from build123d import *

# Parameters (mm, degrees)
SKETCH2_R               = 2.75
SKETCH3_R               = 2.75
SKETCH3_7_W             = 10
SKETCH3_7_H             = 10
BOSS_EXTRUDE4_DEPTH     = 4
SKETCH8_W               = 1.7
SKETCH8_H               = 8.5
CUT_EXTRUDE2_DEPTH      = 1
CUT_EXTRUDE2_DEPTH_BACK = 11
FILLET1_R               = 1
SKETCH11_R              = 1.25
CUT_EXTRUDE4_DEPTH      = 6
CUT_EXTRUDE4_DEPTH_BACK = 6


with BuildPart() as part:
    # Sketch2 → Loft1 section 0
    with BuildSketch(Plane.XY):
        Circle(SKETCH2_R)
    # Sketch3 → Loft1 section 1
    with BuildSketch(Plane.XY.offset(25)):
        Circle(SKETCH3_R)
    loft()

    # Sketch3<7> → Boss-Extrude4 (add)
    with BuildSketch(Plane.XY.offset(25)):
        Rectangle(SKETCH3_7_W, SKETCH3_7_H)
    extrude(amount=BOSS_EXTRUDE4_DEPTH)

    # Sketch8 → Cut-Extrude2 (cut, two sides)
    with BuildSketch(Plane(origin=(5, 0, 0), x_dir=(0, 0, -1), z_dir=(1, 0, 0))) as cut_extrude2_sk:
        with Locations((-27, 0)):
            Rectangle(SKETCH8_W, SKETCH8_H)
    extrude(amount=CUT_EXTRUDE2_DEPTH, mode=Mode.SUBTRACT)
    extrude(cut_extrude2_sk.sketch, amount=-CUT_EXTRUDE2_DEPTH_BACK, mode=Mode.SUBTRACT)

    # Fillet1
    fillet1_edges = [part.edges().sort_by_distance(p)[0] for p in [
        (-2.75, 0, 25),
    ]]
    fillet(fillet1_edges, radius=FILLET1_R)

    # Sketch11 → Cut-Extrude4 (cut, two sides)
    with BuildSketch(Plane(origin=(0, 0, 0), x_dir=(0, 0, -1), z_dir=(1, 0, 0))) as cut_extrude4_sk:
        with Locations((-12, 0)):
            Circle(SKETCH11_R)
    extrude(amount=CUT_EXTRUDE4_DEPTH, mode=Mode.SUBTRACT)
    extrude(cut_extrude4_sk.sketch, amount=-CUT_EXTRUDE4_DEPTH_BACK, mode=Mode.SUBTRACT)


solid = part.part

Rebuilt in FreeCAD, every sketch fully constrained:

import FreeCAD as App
import Part
import Sketcher

V = App.Vector


def edges_at(feature, points):
    """Names of the edges that pass closest to the given points."""
    edges = feature.Shape.Edges
    near = lambda p: min(range(len(edges)), key=lambda i: edges[i].distToShape(Part.Vertex(*p))[0])
    return sorted({f"Edge{near(p) + 1}" for p in points})


def add_polygon(sketch, points):
    """Adds a closed chain of lines whose ends are joined by coincident constraints."""
    first, n = sketch.GeometryCount, len(points)
    for a, b in zip(points, points[1:] + points[:1]):
        sketch.addGeometry(Part.LineSegment(App.Vector(*a, 0), App.Vector(*b, 0)), False)
    for i in range(n):
        sketch.addConstraint(Sketcher.Constraint("Coincident", first + i, 2, first + (i + 1) % n, 1))

doc = App.newDocument("Part")
body = doc.addObject("PartDesign::Body", "Body")

sketch1 = body.newObject("Sketcher::SketchObject", "Sketch")
sketch1.AttachmentSupport = (doc.getObject("XY_Plane"), [""])
sketch1.MapMode = "FlatFace"
sketch1.addGeometry(Part.Circle(V(0, 0, 0), V(0, 0, 1), 2.8), False)
sketch1.addConstraint([
    Sketcher.Constraint("Coincident", 0, 3, -1, 1),
    Sketcher.Constraint("Diameter", 0, 5.5),
])

sketch2 = body.newObject("Sketcher::SketchObject", "Sketch001")
sketch2.AttachmentSupport = (doc.getObject("XY_Plane"), [""])
sketch2.MapMode = "FlatFace"
sketch2.AttachmentOffset = App.Placement(V(0, 0, 25), App.Rotation())
sketch2.addGeometry(Part.Circle(V(0, 0, 0), V(0, 0, 1), 2.8), False)
sketch2.addConstraint([
    Sketcher.Constraint("Coincident", 0, 3, -1, 1),
    Sketcher.Constraint("Diameter", 0, 5.5),
])

additiveloft = body.newObject("PartDesign::AdditiveLoft", "AdditiveLoft")
additiveloft.Profile = sketch1
additiveloft.Sections = [sketch2]

sketch3 = body.newObject("Sketcher::SketchObject", "Sketch002")
sketch3.AttachmentSupport = (doc.getObject("XY_Plane"), [""])
sketch3.MapMode = "FlatFace"
sketch3.AttachmentOffset = App.Placement(V(0, 0, 25), App.Rotation())
add_polygon(sketch3, [(-5, 5), (-5, -5), (5, -5), (5, 5)])
sketch3.addConstraint([
    Sketcher.Constraint("Vertical", 0),
    Sketcher.Constraint("Horizontal", 1),
    Sketcher.Constraint("Vertical", 2),
    Sketcher.Constraint("Horizontal", 3),
    Sketcher.Constraint("Symmetric", 0, 2, 2, 2, -1, 1),
    Sketcher.Constraint("Equal", 3, 0),
    Sketcher.Constraint("DistanceX", 1, 1, 1, 2, 10.0),
])
pad1 = body.newObject("PartDesign::Pad", "Pad")
pad1.Profile = sketch3
pad1.Length = 4

sketch4 = body.newObject("Sketcher::SketchObject", "Sketch003")
sketch4.AttachmentSupport = (doc.getObject("YZ_Plane"), [""])
sketch4.MapMode = "FlatFace"
sketch4.AttachmentOffset = App.Placement(V(0, 0, 5), App.Rotation())
add_polygon(sketch4, [(4.2, 27.9), (-4.2, 27.9), (-4.2, 26.1), (4.2, 26.1)])
sketch4.addConstraint([
    Sketcher.Constraint("Horizontal", 0),
    Sketcher.Constraint("Vertical", 1),
    Sketcher.Constraint("Horizontal", 2),
    Sketcher.Constraint("Vertical", 3),
    Sketcher.Constraint("DistanceX", 0, 2, 0, 1, 8.5),
    Sketcher.Constraint("DistanceY", 1, 2, 1, 1, 1.7),
    Sketcher.Constraint("DistanceX", 0, 2, -1, 1, 4.25),
    Sketcher.Constraint("DistanceY", -1, 1, 0, 2, 27.85),
])
pocket1 = body.newObject("PartDesign::Pocket", "Pocket")
pocket1.Profile = sketch4
pocket1.Type = "ThroughAll"
pocket1.Midplane = True
doc.recompute()

fillet = body.newObject("PartDesign::Fillet", "Fillet")
fillet.Base = (pocket1, edges_at(pocket1, [(-2.75, 0, 25)]))
fillet.Radius = 1

sketch5 = body.newObject("Sketcher::SketchObject", "Sketch004")
sketch5.AttachmentSupport = (doc.getObject("YZ_Plane"), [""])
sketch5.MapMode = "FlatFace"
sketch5.addGeometry(Part.Circle(V(0, 12, 0), V(0, 0, 1), 1.2), False)
sketch5.addConstraint([
    Sketcher.Constraint("PointOnObject", 0, 3, -2),
    Sketcher.Constraint("Diameter", 0, 2.5),
    Sketcher.Constraint("DistanceY", -1, 1, 0, 3, 12.0),
])
pocket2 = body.newObject("PartDesign::Pocket", "Pocket001")
pocket2.Profile = sketch5
pocket2.Type = "ThroughAll"
pocket2.Midplane = True

doc.recompute()
